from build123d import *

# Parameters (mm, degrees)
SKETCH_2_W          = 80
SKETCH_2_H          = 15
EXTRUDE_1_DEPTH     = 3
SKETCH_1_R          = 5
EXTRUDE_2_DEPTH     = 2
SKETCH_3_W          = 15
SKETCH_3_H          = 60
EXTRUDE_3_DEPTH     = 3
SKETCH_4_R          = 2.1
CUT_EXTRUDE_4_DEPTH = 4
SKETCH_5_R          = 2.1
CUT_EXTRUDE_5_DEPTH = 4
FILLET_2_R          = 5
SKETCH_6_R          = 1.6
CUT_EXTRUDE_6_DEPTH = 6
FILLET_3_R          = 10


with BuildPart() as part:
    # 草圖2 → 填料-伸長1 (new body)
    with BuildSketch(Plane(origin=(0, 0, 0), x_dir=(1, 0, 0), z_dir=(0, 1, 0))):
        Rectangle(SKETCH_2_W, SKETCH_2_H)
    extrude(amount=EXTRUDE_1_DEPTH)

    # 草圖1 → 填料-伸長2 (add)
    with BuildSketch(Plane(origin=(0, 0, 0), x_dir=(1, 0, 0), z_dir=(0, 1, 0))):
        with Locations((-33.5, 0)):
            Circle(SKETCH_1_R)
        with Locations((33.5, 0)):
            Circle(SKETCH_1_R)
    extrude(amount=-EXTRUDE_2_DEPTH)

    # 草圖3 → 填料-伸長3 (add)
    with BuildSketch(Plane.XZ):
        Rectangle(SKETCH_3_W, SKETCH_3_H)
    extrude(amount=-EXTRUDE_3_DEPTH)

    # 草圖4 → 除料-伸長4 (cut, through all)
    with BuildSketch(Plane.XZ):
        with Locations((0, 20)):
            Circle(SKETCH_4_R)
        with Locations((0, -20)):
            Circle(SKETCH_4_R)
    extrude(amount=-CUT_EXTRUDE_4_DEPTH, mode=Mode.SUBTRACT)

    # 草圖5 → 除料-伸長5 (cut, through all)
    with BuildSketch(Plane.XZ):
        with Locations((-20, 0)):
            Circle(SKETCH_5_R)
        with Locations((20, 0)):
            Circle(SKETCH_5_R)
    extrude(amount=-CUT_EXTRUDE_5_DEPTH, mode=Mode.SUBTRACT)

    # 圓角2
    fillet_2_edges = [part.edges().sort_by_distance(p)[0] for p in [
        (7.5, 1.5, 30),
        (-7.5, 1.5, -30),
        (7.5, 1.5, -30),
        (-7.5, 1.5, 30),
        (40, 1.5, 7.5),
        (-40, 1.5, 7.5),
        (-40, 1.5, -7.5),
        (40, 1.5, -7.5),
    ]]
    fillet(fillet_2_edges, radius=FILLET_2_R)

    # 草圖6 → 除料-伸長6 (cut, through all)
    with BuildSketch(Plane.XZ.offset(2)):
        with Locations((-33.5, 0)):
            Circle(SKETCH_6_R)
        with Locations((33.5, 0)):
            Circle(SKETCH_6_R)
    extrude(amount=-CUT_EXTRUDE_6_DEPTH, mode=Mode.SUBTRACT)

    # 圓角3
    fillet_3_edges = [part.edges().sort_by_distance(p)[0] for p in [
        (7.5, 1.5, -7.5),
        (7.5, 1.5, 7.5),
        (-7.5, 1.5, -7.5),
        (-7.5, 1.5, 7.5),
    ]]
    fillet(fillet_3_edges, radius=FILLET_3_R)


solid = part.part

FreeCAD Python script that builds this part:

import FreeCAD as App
import Part
import Sketcher
Q = App.Units.Quantity


def edges_at(feature, points):
    """Names of the edges that pass closest to the given points."""
    edges = feature.Shape.Edges
    near = lambda p: min(range(len(edges)), key=lambda i: edges[i].distToShape(Part.Vertex(*p))[0])
    return sorted({f"Edge{near(p) + 1}" for p in points})

doc = App.newDocument("Part")
body = doc.addObject("PartDesign::Body", "Body")

# Sketch on XZ plane
sketch1 = body.newObject("Sketcher::SketchObject", "Sketch")
sketch1.AttachmentSupport = (doc.getObject("XZ_Plane"), [""])
sketch1.MapMode = "FlatFace"
sketch1.addGeometry([
    Part.LineSegment(App.Vector(-40, -8, 0), App.Vector(-40, 8, 0)),
    Part.LineSegment(App.Vector(-40, 8, 0), App.Vector(40, 8, 0)),
    Part.LineSegment(App.Vector(40, 8, 0), App.Vector(40, -8, 0)),
    Part.LineSegment(App.Vector(40, -8, 0), App.Vector(-40, -8, 0)),
], False)
sketch1.addConstraint([
    Sketcher.Constraint("Coincident", 0, 2, 1, 1),
    Sketcher.Constraint("Coincident", 1, 2, 2, 1),
    Sketcher.Constraint("Coincident", 2, 2, 3, 1),
    Sketcher.Constraint("Coincident", 3, 2, 0, 1),
    Sketcher.Constraint("Vertical", 0),
    Sketcher.Constraint("Horizontal", 1),
    Sketcher.Constraint("Vertical", 2),
    Sketcher.Constraint("Horizontal", 3),
    Sketcher.Constraint("Symmetric", 0, 2, 2, 2, -1, 1),
    Sketcher.Constraint("DistanceX", 1, 1, 1, 2, Q("80 mm")),
    Sketcher.Constraint("DistanceY", 0, 1, 0, 2, Q("15 mm")),
])
pad1 = body.newObject("PartDesign::Pad", "Pad")
pad1.Profile = sketch1
pad1.Length = 3
pad1.Reversed = True

# Sketch on XZ plane
sketch2 = body.newObject("Sketcher::SketchObject", "Sketch001")
sketch2.AttachmentSupport = (doc.getObject("XZ_Plane"), [""])
sketch2.MapMode = "FlatFace"
sketch2.addGeometry([
    Part.Circle(App.Vector(-34, 0, 0), App.Vector(0, 0, 1), 5),
    Part.Circle(App.Vector(34, 0, 0), App.Vector(0, 0, 1), 5),
], False)
sketch2.addConstraint([
    Sketcher.Constraint("Equal", 0, 1),
    Sketcher.Constraint("Symmetric", 0, 3, 1, 3, -1, 1),
    Sketcher.Constraint("PointOnObject", 0, 3, -1),
    Sketcher.Constraint("Diameter", 0, Q("10 mm")),
    Sketcher.Constraint("DistanceX", 0, 3, 1, 3, Q("67 mm")),
])
pad2 = body.newObject("PartDesign::Pad", "Pad001")
pad2.Profile = sketch2
pad2.Length = 2

# Sketch on XZ plane
sketch3 = body.newObject("Sketcher::SketchObject", "Sketch002")
sketch3.AttachmentSupport = (doc.getObject("XZ_Plane"), [""])
sketch3.MapMode = "FlatFace"
sketch3.addGeometry([
    Part.LineSegment(App.Vector(-8, 30, 0), App.Vector(-8, -30, 0)),
    Part.LineSegment(App.Vector(-8, -30, 0), App.Vector(8, -30, 0)),
    Part.LineSegment(App.Vector(8, -30, 0), App.Vector(8, 30, 0)),
    Part.LineSegment(App.Vector(8, 30, 0), App.Vector(-8, 30, 0)),
], False)
sketch3.addConstraint([
    Sketcher.Constraint("Coincident", 0, 2, 1, 1),
    Sketcher.Constraint("Coincident", 1, 2, 2, 1),
    Sketcher.Constraint("Coincident", 2, 2, 3, 1),
    Sketcher.Constraint("Coincident", 3, 2, 0, 1),
    Sketcher.Constraint("Vertical", 0),
    Sketcher.Constraint("Horizontal", 1),
    Sketcher.Constraint("Vertical", 2),
    Sketcher.Constraint("Horizontal", 3),
    Sketcher.Constraint("Symmetric", 0, 2, 2, 2, -1, 1),
    Sketcher.Constraint("DistanceX", 1, 1, 1, 2, Q("15 mm")),
    Sketcher.Constraint("DistanceY", 0, 2, 0, 1, Q("60 mm")),
])
pad3 = body.newObject("PartDesign::Pad", "Pad002")
pad3.Profile = sketch3
pad3.Length = 3
pad3.Reversed = True

# Sketch on XZ plane
sketch4 = body.newObject("Sketcher::SketchObject", "Sketch003")
sketch4.AttachmentSupport = (doc.getObject("XZ_Plane"), [""])
sketch4.MapMode = "FlatFace"
sketch4.addGeometry([
    Part.Circle(App.Vector(0, 20, 0), App.Vector(0, 0, 1), 2.1),
    Part.Circle(App.Vector(0, -20, 0), App.Vector(0, 0, 1), 2.1),
], False)
sketch4.addConstraint([
    Sketcher.Constraint("Equal", 0, 1),
    Sketcher.Constraint("Symmetric", 0, 3, 1, 3, -1, 1),
    Sketcher.Constraint("PointOnObject", 0, 3, -2),
    Sketcher.Constraint("Diameter", 0, Q("4.2 mm")),
    Sketcher.Constraint("DistanceY", -1, 1, 0, 3, Q("20 mm")),
])
pocket1 = body.newObject("PartDesign::Pocket", "Pocket")
pocket1.Profile = sketch4
pocket1.Type = "ThroughAll"

# Sketch on XZ plane
sketch5 = body.newObject("Sketcher::SketchObject", "Sketch004")
sketch5.AttachmentSupport = (doc.getObject("XZ_Plane"), [""])
sketch5.MapMode = "FlatFace"
sketch5.addGeometry([
    Part.Circle(App.Vector(-20, 0, 0), App.Vector(0, 0, 1), 2.1),
    Part.Circle(App.Vector(20, 0, 0), App.Vector(0, 0, 1), 2.1),
], False)
sketch5.addConstraint([
    Sketcher.Constraint("Equal", 0, 1),
    Sketcher.Constraint("Symmetric", 0, 3, 1, 3, -1, 1),
    Sketcher.Constraint("PointOnObject", 0, 3, -1),
    Sketcher.Constraint("Diameter", 0, Q("4.2 mm")),
    Sketcher.Constraint("DistanceX", 0, 3, -1, 1, Q("20 mm")),
])
pocket2 = body.newObject("PartDesign::Pocket", "Pocket001")
pocket2.Profile = sketch5
pocket2.Type = "ThroughAll"
doc.recompute()

fillet = body.newObject("PartDesign::Fillet", "Fillet")
fillet.Base = (pocket2, edges_at(pocket2, [
    (7.5, 1.5, 30),
    (-7.5, 1.5, -30),
    (7.5, 1.5, -30),
    (-7.5, 1.5, 30),
    (40, 1.5, 7.5),
    (-40, 1.5, 7.5),
    (-40, 1.5, -7.5),
    (40, 1.5, -7.5),
]))
fillet.Radius = 5

# Sketch on XZ plane
sketch6 = body.newObject("Sketcher::SketchObject", "Sketch005")
sketch6.AttachmentSupport = (doc.getObject("XZ_Plane"), [""])
sketch6.MapMode = "FlatFace"
sketch6.AttachmentOffset = App.Placement(App.Vector(0, 0, 2), App.Rotation())
sketch6.addGeometry([
    Part.Circle(App.Vector(-33.5, 0, 0), App.Vector(0, 0, 1), 1.6),
    Part.Circle(App.Vector(33.5, 0, 0), App.Vector(0, 0, 1), 1.6),
], False)
sketch6.addConstraint([
    Sketcher.Constraint("Equal", 0, 1),
    Sketcher.Constraint("Symmetric", 0, 3, 1, 3, -1, 1),
    Sketcher.Constraint("PointOnObject", 0, 3, -1),
    Sketcher.Constraint("Diameter", 0, Q("3.2 mm")),
    Sketcher.Constraint("DistanceX", 0, 3, 1, 3, Q("67 mm")),
])
pocket3 = body.newObject("PartDesign::Pocket", "Pocket002")
pocket3.Profile = sketch6
pocket3.Type = "ThroughAll"
doc.recompute()

fillet2 = body.newObject("PartDesign::Fillet", "Fillet001")
fillet2.Base = (pocket3, edges_at(pocket3, [
    (7.5, 1.5, -7.5),
    (7.5, 1.5, 7.5),
    (-7.5, 1.5, -7.5),
    (-7.5, 1.5, 7.5),
]))
fillet2.Radius = 10

doc.recompute()
